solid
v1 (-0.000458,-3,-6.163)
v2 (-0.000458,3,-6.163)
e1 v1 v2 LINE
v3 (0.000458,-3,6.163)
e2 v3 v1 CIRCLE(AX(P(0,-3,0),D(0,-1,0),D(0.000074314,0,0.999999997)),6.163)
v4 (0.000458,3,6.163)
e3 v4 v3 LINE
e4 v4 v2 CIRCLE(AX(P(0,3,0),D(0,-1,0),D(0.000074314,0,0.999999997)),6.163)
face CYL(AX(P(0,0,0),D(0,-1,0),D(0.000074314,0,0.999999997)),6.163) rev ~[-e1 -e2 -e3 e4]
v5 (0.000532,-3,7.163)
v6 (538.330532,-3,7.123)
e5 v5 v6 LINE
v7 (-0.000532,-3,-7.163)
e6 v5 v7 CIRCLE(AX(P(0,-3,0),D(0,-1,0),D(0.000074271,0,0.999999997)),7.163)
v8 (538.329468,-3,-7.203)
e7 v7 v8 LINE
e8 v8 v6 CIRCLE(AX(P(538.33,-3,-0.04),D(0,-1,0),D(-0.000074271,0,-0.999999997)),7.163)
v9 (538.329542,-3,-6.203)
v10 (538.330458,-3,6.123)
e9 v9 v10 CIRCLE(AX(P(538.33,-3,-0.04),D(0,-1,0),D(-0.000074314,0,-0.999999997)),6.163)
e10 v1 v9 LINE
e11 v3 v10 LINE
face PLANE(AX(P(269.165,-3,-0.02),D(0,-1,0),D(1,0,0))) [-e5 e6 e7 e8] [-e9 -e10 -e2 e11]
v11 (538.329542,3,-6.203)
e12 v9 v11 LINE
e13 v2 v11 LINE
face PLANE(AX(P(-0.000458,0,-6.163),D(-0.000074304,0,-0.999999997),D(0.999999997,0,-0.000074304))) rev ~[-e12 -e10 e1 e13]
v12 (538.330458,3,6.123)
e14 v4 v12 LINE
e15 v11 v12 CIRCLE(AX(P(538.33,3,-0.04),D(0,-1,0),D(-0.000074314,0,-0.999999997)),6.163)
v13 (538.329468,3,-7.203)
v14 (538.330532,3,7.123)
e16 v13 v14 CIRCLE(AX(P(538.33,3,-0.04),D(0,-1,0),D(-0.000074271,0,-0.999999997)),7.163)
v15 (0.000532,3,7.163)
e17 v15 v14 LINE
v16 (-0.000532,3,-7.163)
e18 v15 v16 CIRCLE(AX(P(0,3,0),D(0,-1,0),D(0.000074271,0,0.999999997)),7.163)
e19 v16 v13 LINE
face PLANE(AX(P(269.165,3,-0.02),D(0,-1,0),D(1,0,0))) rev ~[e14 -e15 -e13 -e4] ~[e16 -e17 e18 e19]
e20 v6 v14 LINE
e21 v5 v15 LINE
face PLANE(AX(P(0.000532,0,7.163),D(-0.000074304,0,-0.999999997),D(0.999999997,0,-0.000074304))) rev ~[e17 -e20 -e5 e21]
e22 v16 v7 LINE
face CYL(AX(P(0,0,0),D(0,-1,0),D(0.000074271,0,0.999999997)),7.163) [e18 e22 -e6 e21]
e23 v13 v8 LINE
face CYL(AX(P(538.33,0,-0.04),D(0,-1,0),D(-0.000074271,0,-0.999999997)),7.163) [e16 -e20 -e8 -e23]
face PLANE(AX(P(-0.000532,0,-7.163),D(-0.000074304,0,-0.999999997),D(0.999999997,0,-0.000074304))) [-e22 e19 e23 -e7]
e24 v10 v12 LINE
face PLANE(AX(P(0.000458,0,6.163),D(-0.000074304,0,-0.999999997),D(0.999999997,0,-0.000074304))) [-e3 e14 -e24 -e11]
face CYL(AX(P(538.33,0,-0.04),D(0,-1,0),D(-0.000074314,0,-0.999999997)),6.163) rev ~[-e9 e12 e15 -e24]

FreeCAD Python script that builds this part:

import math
import FreeCAD as App
import Part
import Sketcher
Q = App.Units.Quantity

doc = App.newDocument("Part")
params = doc.addObject("Spreadsheet::Sheet", "Params")
for row, (alias, value) in enumerate([
    ("sketch1_length", "538.330001 mm"),
    ("pad1_length", "6 mm"),
], start=1):
    params.set(f"A{row}", alias)
    params.set(f"B{row}", "=" + value)
    params.setAlias(f"B{row}", alias)

body = doc.addObject("PartDesign::Body", "Body")

# Sketch on XZ plane
sketch1 = doc.addObject("Sketcher::SketchObject", "Sketch")
body.addObject(sketch1)
sketch1.AttachmentSupport = (doc.XZ_Plane, [""])
sketch1.MapMode = "FlatFace"
sketch1.addGeometry(Part.ArcOfCircle(Part.Circle(App.Vector(0, 0, 0), App.Vector(0, 0, 1), 7), math.radians(90), math.radians(270)), False)
sketch1.addGeometry(Part.LineSegment(App.Vector(0, -7, 0), App.Vector(538, -7, 0)), False)
sketch1.addGeometry(Part.ArcOfCircle(Part.Circle(App.Vector(538, 0, 0), App.Vector(0, 0, 1), 7), math.radians(-90), math.radians(90)), False)
sketch1.addGeometry(Part.LineSegment(App.Vector(538, 7, 0), App.Vector(0, 7, 0)), False)
sketch1.addGeometry(Part.ArcOfCircle(Part.Circle(App.Vector(0, 0, 0), App.Vector(0, 0, 1), 6), math.radians(90), math.radians(270)), False)
sketch1.addGeometry(Part.LineSegment(App.Vector(0, 6, 0), App.Vector(538, 6, 0)), False)
sketch1.addGeometry(Part.ArcOfCircle(Part.Circle(App.Vector(538, 0, 0), App.Vector(0, 0, 1), 6), math.radians(-90), math.radians(90)), False)
sketch1.addGeometry(Part.LineSegment(App.Vector(538, -6, 0), App.Vector(0, -6, 0)), False)
sketch1.addConstraint(Sketcher.Constraint("Tangent", 0, 2, 1, 1))
sketch1.addConstraint(Sketcher.Constraint("Tangent", 1, 2, 2, 1))
sketch1.addConstraint(Sketcher.Constraint("Tangent", 2, 2, 3, 1))
sketch1.addConstraint(Sketcher.Constraint("Tangent", 3, 2, 0, 1))
sketch1.addConstraint(Sketcher.Constraint("Tangent", 4, 1, 5, 1))
sketch1.addConstraint(Sketcher.Constraint("Tangent", 5, 2, 6, 2))
sketch1.addConstraint(Sketcher.Constraint("Tangent", 6, 1, 7, 1))
sketch1.addConstraint(Sketcher.Constraint("Tangent", 7, 2, 4, 2))
sketch1.addConstraint(Sketcher.Constraint("Coincident", 0, 3, -1, 1))
sketch1.addConstraint(Sketcher.Constraint("Coincident", 4, 3, -1, 1))
sketch1.addConstraint(Sketcher.Constraint("Coincident", 6, 3, 2, 3))
sketch1.addConstraint(Sketcher.Constraint("Equal", 0, 2))
sketch1.addConstraint(Sketcher.Constraint("Equal", 4, 6))
sketch1.addConstraint(Sketcher.Constraint("Radius", 0, Q("7.163 mm")))
sketch1.addConstraint(Sketcher.Constraint("Radius", 4, Q("6.163 mm")))
sketch1.addConstraint(Sketcher.Constraint("Distance", 1, Q("538.330001 mm")))
sketch1.addConstraint(Sketcher.Constraint("DistanceY", 2, 3, -1, 1, Q("0.04 mm")))
sketch1.setExpression("Constraints[15]", "Params.sketch1_length")
pad1 = doc.addObject("PartDesign::Pad", "Pad")
body.addObject(pad1)
pad1.Profile = sketch1
pad1.setExpression("Length", "Params.pad1_length")
pad1.Midplane = True

doc.recompute()
